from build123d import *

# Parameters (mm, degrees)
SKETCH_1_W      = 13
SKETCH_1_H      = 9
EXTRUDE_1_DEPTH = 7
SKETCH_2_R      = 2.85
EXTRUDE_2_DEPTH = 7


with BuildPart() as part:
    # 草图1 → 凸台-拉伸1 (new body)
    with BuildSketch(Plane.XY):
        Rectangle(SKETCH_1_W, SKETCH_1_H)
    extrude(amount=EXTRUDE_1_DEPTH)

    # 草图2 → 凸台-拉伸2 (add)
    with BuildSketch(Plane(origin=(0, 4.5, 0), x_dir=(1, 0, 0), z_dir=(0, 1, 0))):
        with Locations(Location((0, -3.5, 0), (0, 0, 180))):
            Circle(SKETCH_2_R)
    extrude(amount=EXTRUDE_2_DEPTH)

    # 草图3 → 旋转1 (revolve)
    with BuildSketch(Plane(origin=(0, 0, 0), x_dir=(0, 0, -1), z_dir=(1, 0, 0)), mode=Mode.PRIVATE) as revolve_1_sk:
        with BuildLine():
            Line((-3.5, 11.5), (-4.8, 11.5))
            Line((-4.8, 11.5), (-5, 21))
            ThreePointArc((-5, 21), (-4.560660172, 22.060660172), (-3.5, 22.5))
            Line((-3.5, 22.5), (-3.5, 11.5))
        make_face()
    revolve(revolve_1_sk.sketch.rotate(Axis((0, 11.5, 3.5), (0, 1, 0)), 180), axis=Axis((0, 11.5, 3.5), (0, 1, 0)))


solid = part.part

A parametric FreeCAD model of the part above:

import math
import FreeCAD as App
import Part
import Sketcher
Q = App.Units.Quantity


def add_polygon(sketch, points):
    """Adds a closed chain of lines whose ends are joined by coincident constraints."""
    first, n = sketch.GeometryCount, len(points)
    for a, b in zip(points, points[1:] + points[:1]):
        sketch.addGeometry(Part.LineSegment(App.Vector(*a, 0), App.Vector(*b, 0)), False)
    for i in range(n):
        sketch.addConstraint(Sketcher.Constraint("Coincident", first + i, 2, first + (i + 1) % n, 1))

doc = App.newDocument("Part")
body = doc.addObject("PartDesign::Body", "Body")

sketch1 = body.newObject("Sketcher::SketchObject", "Sketch")
sketch1.AttachmentSupport = (doc.getObject("XY_Plane"), [""])
sketch1.MapMode = "FlatFace"
add_polygon(sketch1, [(-6, 4), (-6, -4), (6, -4), (6, 4)])
sketch1.addConstraint([
    Sketcher.Constraint("Vertical", 0),
    Sketcher.Constraint("Horizontal", 1),
    Sketcher.Constraint("Vertical", 2),
    Sketcher.Constraint("Horizontal", 3),
    Sketcher.Constraint("Symmetric", 0, 2, 2, 2, -1, 1),
    Sketcher.Constraint("DistanceX", 1, 1, 1, 2, Q("13 mm")),
    Sketcher.Constraint("DistanceY", 0, 2, 0, 1, Q("9 mm")),
])
pad1 = body.newObject("PartDesign::Pad", "Pad")
pad1.Profile = sketch1
pad1.Length = 7

sketch2 = body.newObject("Sketcher::SketchObject", "Sketch001")
sketch2.AttachmentSupport = (doc.getObject("XZ_Plane"), [""])
sketch2.MapMode = "FlatFace"
sketch2.AttachmentOffset = App.Placement(App.Vector(0, 0, -4.5), App.Rotation())
sketch2.addGeometry(Part.Circle(App.Vector(0, 3.5, 0), App.Vector(0, 0, 1), 2.9), False)
sketch2.addConstraint([
    Sketcher.Constraint("PointOnObject", 0, 3, -2),
    Sketcher.Constraint("Diameter", 0, Q("5.7 mm")),
    Sketcher.Constraint("DistanceY", -1, 1, 0, 3, Q("3.5 mm")),
])
pad2 = body.newObject("PartDesign::Pad", "Pad001")
pad2.Profile = sketch2
pad2.Length = 7
pad2.Reversed = True

sketch3 = body.newObject("Sketcher::SketchObject", "Sketch002")
sketch3.AttachmentSupport = (doc.getObject("YZ_Plane"), [""])
sketch3.MapMode = "FlatFace"
sketch3.addGeometry([
    Part.LineSegment(App.Vector(11.5, 4.8, 0), App.Vector(11.5, 3.5, 0)),
    Part.LineSegment(App.Vector(11.5, 3.5, 0), App.Vector(22.5, 3.5, 0)),
    Part.ArcOfCircle(Part.Circle(App.Vector(21, 3.5, 0), App.Vector(0, 0, 1), 1.5), math.radians(0), math.radians(90)),
    Part.LineSegment(App.Vector(21, 5, 0), App.Vector(11.5, 4.8, 0)),
], False)
sketch3.addGeometry(Part.LineSegment(App.Vector(11.5, 3.5, 0), App.Vector(22.5, 3.5, 0)), True)
sketch3.addConstraint([
    Sketcher.Constraint("Coincident", 0, 2, 1, 1),
    Sketcher.Constraint("Coincident", 1, 2, 2, 1),
    Sketcher.Constraint("Coincident", 2, 2, 3, 1),
    Sketcher.Constraint("Coincident", 3, 2, 0, 1),
    Sketcher.Constraint("Vertical", 0),
    Sketcher.Constraint("Horizontal", 1),
    Sketcher.Constraint("Horizontal", 4),
    Sketcher.Constraint("Coincident", 4, 1, 0, 2),
    Sketcher.Constraint("Horizontal", 2, 3, 0, 2),
    Sketcher.Constraint("Equal", 1, 4),
    Sketcher.Constraint("Radius", 2, Q("1.5 mm")),
    Sketcher.Constraint("DistanceX", 1, 1, 1, 2, Q("11 mm")),
    Sketcher.Constraint("DistanceY", 0, 2, 0, 1, Q("1.3 mm")),
    Sketcher.Constraint("DistanceX", -1, 1, 2, 3, Q("21 mm")),
    Sketcher.Constraint("DistanceX", -1, 1, 2, 2, Q("21 mm")),
    Sketcher.Constraint("DistanceY", -1, 1, 2, 2, Q("5 mm")),
])
revolution = body.newObject("PartDesign::Revolution", "Revolution")
revolution.Profile = sketch3
revolution.ReferenceAxis = (sketch3, ["Axis0"])
revolution.Angle = 360

doc.recompute()
